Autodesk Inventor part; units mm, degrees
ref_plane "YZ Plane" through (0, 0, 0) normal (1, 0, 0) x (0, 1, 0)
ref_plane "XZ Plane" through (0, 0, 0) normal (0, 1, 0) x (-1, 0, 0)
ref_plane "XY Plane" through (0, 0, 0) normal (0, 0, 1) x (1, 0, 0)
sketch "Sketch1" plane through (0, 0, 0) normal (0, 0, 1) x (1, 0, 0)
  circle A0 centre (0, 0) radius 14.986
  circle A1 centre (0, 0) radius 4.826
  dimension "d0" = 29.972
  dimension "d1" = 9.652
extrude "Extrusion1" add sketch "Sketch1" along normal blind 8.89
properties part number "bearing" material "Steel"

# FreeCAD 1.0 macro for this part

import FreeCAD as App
import Part
import Sketcher
from FreeCAD import Vector
Q = App.Units.Quantity

doc = App.newDocument("Part")
body = doc.addObject("PartDesign::Body", "Body")

# Sketch on XY plane
sketch1 = doc.addObject("Sketcher::SketchObject", "Sketch")
body.addObject(sketch1)
sketch1.AttachmentSupport = (doc.XY_Plane, [""])
sketch1.MapMode = "FlatFace"
sketch1.addGeometry(Part.Circle(Vector(0, 0, 0), Vector(0, 0, 1), 15), False)
sketch1.addGeometry(Part.Circle(Vector(0, 0, 0), Vector(0, 0, 1), 4.8), False)
sketch1.addConstraint(Sketcher.Constraint("Coincident", 0, 3, -1, 1))
sketch1.addConstraint(Sketcher.Constraint("Coincident", 1, 3, -1, 1))
sketch1.addConstraint(Sketcher.Constraint("Diameter", 0, Q("1.18 in")))
sketch1.addConstraint(Sketcher.Constraint("Diameter", 1, Q("0.38 in")))
pad1 = doc.addObject("PartDesign::Pad", "Pad")
body.addObject(pad1)
pad1.Profile = sketch1
pad1.Length = Q("0.35 in")

doc.recompute()
